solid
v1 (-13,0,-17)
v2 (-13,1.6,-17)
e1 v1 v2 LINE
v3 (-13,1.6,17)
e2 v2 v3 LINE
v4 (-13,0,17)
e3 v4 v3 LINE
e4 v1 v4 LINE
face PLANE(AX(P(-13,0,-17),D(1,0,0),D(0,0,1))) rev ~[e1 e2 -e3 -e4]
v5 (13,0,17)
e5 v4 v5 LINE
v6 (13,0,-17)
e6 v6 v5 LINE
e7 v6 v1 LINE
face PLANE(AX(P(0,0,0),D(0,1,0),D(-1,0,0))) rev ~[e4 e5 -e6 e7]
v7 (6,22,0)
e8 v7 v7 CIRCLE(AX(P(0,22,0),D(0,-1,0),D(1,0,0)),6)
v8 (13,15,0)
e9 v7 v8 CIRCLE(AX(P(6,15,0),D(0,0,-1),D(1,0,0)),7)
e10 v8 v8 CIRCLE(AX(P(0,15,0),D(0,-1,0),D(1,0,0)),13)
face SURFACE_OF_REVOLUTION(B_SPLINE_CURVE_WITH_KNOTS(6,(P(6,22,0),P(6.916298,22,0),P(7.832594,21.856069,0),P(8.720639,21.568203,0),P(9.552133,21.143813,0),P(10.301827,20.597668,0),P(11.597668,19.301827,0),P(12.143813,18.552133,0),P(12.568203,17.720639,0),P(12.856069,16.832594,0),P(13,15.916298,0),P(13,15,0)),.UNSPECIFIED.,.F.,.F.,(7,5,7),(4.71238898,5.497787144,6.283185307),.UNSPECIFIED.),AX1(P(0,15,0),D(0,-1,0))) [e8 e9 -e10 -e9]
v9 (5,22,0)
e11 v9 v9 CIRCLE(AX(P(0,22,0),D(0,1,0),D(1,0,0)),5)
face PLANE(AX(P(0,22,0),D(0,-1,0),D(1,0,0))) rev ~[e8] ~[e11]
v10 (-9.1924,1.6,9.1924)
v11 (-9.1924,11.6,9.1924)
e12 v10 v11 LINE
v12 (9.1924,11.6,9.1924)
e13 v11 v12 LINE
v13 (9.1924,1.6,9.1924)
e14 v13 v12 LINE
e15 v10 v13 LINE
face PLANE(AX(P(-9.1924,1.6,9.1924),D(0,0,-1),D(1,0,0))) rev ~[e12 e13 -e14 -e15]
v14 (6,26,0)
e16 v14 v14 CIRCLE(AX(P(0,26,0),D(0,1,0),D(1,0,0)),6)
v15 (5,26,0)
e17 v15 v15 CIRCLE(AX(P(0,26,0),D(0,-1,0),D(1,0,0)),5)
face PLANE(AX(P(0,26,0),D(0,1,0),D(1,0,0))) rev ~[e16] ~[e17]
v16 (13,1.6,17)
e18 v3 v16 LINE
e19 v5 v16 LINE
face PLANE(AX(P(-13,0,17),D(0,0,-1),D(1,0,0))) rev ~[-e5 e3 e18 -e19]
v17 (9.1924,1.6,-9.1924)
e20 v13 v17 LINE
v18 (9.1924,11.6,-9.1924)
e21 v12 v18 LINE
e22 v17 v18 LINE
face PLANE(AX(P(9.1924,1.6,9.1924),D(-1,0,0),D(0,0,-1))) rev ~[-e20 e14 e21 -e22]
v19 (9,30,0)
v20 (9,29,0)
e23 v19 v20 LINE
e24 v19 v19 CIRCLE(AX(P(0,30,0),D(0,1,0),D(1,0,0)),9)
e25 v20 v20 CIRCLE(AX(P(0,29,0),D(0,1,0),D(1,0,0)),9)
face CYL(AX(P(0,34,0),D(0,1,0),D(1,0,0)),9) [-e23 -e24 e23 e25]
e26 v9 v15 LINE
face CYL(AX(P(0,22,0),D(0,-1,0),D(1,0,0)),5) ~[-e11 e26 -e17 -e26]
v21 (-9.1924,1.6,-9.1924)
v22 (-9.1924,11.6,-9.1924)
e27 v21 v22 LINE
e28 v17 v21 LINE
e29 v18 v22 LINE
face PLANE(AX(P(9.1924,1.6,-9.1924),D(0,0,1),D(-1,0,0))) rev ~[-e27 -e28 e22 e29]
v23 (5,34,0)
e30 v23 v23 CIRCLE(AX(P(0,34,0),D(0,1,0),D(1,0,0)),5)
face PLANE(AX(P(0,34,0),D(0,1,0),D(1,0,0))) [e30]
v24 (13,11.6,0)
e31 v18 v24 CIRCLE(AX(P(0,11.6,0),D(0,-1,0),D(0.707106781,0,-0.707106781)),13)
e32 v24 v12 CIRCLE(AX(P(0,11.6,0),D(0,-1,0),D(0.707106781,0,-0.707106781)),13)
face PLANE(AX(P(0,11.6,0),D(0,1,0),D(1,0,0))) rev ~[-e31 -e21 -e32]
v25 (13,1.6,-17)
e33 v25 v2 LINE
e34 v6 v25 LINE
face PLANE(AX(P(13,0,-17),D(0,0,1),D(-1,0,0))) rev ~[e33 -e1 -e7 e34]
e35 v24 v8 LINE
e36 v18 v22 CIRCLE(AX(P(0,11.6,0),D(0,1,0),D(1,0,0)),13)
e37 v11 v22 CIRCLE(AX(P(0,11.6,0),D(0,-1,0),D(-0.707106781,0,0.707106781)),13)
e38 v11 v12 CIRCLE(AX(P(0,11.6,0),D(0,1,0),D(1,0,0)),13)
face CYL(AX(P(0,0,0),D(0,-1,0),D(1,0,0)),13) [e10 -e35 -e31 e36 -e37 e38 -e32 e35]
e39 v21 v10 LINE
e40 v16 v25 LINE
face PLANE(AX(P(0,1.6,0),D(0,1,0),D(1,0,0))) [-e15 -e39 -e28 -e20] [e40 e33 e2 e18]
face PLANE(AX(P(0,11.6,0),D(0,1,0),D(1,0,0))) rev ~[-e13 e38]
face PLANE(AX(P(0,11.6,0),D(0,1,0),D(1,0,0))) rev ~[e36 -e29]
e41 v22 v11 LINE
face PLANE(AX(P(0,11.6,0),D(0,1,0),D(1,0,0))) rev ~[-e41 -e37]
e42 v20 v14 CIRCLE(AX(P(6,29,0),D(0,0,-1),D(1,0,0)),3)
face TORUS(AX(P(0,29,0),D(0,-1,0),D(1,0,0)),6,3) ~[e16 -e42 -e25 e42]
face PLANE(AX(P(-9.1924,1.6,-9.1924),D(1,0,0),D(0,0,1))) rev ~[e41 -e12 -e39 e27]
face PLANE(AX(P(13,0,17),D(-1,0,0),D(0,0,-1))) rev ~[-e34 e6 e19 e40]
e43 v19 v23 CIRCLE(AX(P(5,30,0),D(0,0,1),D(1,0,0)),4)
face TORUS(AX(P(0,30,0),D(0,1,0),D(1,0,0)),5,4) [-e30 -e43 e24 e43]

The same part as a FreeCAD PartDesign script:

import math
import FreeCAD as App
import Part
import Sketcher

V = App.Vector
Q = App.Units.Quantity


def edges_at(feature, points):
    """Names of the edges that pass closest to the given points."""
    edges = feature.Shape.Edges
    near = lambda p: min(range(len(edges)), key=lambda i: edges[i].distToShape(Part.Vertex(*p))[0])
    return sorted({f"Edge{near(p) + 1}" for p in points})


def add_polygon(sketch, points):
    """Adds a closed chain of lines whose ends are joined by coincident constraints."""
    first, n = sketch.GeometryCount, len(points)
    for a, b in zip(points, points[1:] + points[:1]):
        sketch.addGeometry(Part.LineSegment(App.Vector(*a, 0), App.Vector(*b, 0)), False)
    for i in range(n):
        sketch.addConstraint(Sketcher.Constraint("Coincident", first + i, 2, first + (i + 1) % n, 1))

doc = App.newDocument("Part")
body = doc.addObject("PartDesign::Body", "Body")

# Sketch on XZ plane
sketch1 = body.newObject("Sketcher::SketchObject", "Sketch")
sketch1.AttachmentSupport = (doc.getObject("XZ_Plane"), [""])
sketch1.MapMode = "FlatFace"
add_polygon(sketch1, [(-13, -17), (-13, 17), (13, 17), (13, -17)])  # lines 0-3
sketch1.addConstraint(Sketcher.Constraint("Vertical", 0))
sketch1.addConstraint(Sketcher.Constraint("Horizontal", 1))
sketch1.addConstraint(Sketcher.Constraint("Vertical", 2))
sketch1.addConstraint(Sketcher.Constraint("Horizontal", 3))
sketch1.addConstraint(Sketcher.Constraint("Symmetric", 0, 2, 2, 2, -1, 1))
sketch1.addConstraint(Sketcher.Constraint("DistanceX", 1, 1, 1, 2, Q("26 mm")))
sketch1.addConstraint(Sketcher.Constraint("DistanceY", 0, 1, 0, 2, Q("34 mm")))
pad1 = body.newObject("PartDesign::Pad", "Pad")
pad1.Profile = sketch1
pad1.Length = 1.6
pad1.Reversed = True

# Sketch on XZ plane
sketch2 = body.newObject("Sketcher::SketchObject", "Sketch001")
sketch2.AttachmentSupport = (doc.getObject("XZ_Plane"), [""])
sketch2.MapMode = "FlatFace"
sketch2.addGeometry(Part.Circle(V(0, 0, 0), V(0, 0, 1), 13), False)
sketch2.addConstraint(Sketcher.Constraint("Coincident", 0, 3, -1, 1))
sketch2.addConstraint(Sketcher.Constraint("Diameter", 0, Q("26 mm")))
pad2 = body.newObject("PartDesign::Pad", "Pad001")
pad2.Profile = sketch2
pad2.Length = 22
pad2.Reversed = True

# Sketch on XZ plane
sketch3 = body.newObject("Sketcher::SketchObject", "Sketch002")
sketch3.AttachmentSupport = (doc.getObject("XZ_Plane"), [""])
sketch3.MapMode = "FlatFace"
sketch3.AttachmentOffset = App.Placement(V(0, 0, -22), App.Rotation())
sketch3.addGeometry(Part.Circle(V(0, 0, 0), V(0, 0, 1), 5), False)
sketch3.addConstraint(Sketcher.Constraint("Coincident", 0, 3, -1, 1))
sketch3.addConstraint(Sketcher.Constraint("Diameter", 0, Q("10 mm")))
pad3 = body.newObject("PartDesign::Pad", "Pad002")
pad3.Profile = sketch3
pad3.Length = 12
pad3.Reversed = True

# Sketch on XZ plane
sketch4 = body.newObject("Sketcher::SketchObject", "Sketch003")
sketch4.AttachmentSupport = (doc.getObject("XZ_Plane"), [""])
sketch4.MapMode = "FlatFace"
sketch4.AttachmentOffset = App.Placement(V(0, 0, -34), App.Rotation())
sketch4.addGeometry(Part.Circle(V(0, 0, 0), V(0, 0, 1), 9), False)
sketch4.addConstraint(Sketcher.Constraint("Coincident", 0, 3, -1, 1))
sketch4.addConstraint(Sketcher.Constraint("Diameter", 0, Q("18 mm")))
pad4 = body.newObject("PartDesign::Pad", "Pad003")
pad4.Profile = sketch4
pad4.Length = 8

# Sketch on XZ plane
sketch5 = body.newObject("Sketcher::SketchObject", "Sketch004")
sketch5.AttachmentSupport = (doc.getObject("XZ_Plane"), [""])
sketch5.MapMode = "FlatFace"
sketch5.AttachmentOffset = App.Placement(V(0, 0, -1.6), App.Rotation())
sketch5.addGeometry(Part.ArcOfCircle(Part.Circle(V(0, 0, 0), V(0, 0, 1), 13), math.radians(-45), math.radians(45)), False)
sketch5.addGeometry(Part.LineSegment(V(9, 9, 0), V(9, -9, 0)), False)
sketch5.addGeometry(Part.LineSegment(V(-9, -9, 0), V(9, -9, 0)), False)
sketch5.addGeometry(Part.ArcOfCircle(Part.Circle(V(0, 0, 0), V(0, 0, 1), 13), math.radians(-135), math.radians(-45)), False)
sketch5.addGeometry(Part.ArcOfCircle(Part.Circle(V(0, 0, 0), V(0, 0, 1), 13), math.radians(45), math.radians(135)), False)
sketch5.addGeometry(Part.LineSegment(V(-9, 9, 0), V(9, 9, 0)), False)
sketch5.addGeometry(Part.LineSegment(V(-9, 9, 0), V(-9, -9, 0)), False)
sketch5.addGeometry(Part.ArcOfCircle(Part.Circle(V(0, 0, 0), V(0, 0, 1), 13), math.radians(135), math.radians(225)), False)
sketch5.addConstraint(Sketcher.Constraint("Coincident", 0, 1, 1, 2))
sketch5.addConstraint(Sketcher.Constraint("Coincident", 1, 1, 0, 2))
sketch5.addConstraint(Sketcher.Constraint("Coincident", 2, 1, 3, 1))
sketch5.addConstraint(Sketcher.Constraint("Coincident", 3, 2, 2, 2))
sketch5.addConstraint(Sketcher.Constraint("Coincident", 4, 1, 5, 2))
sketch5.addConstraint(Sketcher.Constraint("Coincident", 5, 1, 4, 2))
sketch5.addConstraint(Sketcher.Constraint("Coincident", 6, 1, 7, 1))
sketch5.addConstraint(Sketcher.Constraint("Coincident", 7, 2, 6, 2))
sketch5.addConstraint(Sketcher.Constraint("Vertical", 1))
sketch5.addConstraint(Sketcher.Constraint("Horizontal", 2))
sketch5.addConstraint(Sketcher.Constraint("Horizontal", 5))
sketch5.addConstraint(Sketcher.Constraint("Vertical", 6))
sketch5.addConstraint(Sketcher.Constraint("Coincident", 0, 3, -1, 1))
sketch5.addConstraint(Sketcher.Constraint("Coincident", 3, 3, -1, 1))
sketch5.addConstraint(Sketcher.Constraint("Coincident", 4, 3, -1, 1))
sketch5.addConstraint(Sketcher.Constraint("Coincident", 7, 3, -1, 1))
sketch5.addConstraint(Sketcher.Constraint("Coincident", 3, 2, 0, 1))
sketch5.addConstraint(Sketcher.Constraint("Coincident", 4, 1, 1, 1))
sketch5.addConstraint(Sketcher.Constraint("Coincident", 6, 1, 5, 1))
sketch5.addConstraint(Sketcher.Constraint("Equal", 5, 1))
sketch5.addConstraint(Sketcher.Constraint("Radius", 0, Q("13 mm")))
pocket1 = body.newObject("PartDesign::Pocket", "Pocket")
pocket1.Profile = sketch5
pocket1.Length = 10
doc.recompute()

fillet = body.newObject("PartDesign::Fillet", "Fillet")
fillet.Base = (pocket1, edges_at(pocket1, [(-13, 22, 0)]))
fillet.Radius = 7
doc.recompute()

fillet2 = body.newObject("PartDesign::Fillet", "Fillet001")
fillet2.Base = (fillet, edges_at(fillet, [(-9, 34, 0)]))
fillet2.Radius = 4
doc.recompute()

fillet3 = body.newObject("PartDesign::Fillet", "Fillet002")
fillet3.Base = (fillet2, edges_at(fillet2, [(-9, 26, 0)]))
fillet3.Radius = 3

doc.recompute()
